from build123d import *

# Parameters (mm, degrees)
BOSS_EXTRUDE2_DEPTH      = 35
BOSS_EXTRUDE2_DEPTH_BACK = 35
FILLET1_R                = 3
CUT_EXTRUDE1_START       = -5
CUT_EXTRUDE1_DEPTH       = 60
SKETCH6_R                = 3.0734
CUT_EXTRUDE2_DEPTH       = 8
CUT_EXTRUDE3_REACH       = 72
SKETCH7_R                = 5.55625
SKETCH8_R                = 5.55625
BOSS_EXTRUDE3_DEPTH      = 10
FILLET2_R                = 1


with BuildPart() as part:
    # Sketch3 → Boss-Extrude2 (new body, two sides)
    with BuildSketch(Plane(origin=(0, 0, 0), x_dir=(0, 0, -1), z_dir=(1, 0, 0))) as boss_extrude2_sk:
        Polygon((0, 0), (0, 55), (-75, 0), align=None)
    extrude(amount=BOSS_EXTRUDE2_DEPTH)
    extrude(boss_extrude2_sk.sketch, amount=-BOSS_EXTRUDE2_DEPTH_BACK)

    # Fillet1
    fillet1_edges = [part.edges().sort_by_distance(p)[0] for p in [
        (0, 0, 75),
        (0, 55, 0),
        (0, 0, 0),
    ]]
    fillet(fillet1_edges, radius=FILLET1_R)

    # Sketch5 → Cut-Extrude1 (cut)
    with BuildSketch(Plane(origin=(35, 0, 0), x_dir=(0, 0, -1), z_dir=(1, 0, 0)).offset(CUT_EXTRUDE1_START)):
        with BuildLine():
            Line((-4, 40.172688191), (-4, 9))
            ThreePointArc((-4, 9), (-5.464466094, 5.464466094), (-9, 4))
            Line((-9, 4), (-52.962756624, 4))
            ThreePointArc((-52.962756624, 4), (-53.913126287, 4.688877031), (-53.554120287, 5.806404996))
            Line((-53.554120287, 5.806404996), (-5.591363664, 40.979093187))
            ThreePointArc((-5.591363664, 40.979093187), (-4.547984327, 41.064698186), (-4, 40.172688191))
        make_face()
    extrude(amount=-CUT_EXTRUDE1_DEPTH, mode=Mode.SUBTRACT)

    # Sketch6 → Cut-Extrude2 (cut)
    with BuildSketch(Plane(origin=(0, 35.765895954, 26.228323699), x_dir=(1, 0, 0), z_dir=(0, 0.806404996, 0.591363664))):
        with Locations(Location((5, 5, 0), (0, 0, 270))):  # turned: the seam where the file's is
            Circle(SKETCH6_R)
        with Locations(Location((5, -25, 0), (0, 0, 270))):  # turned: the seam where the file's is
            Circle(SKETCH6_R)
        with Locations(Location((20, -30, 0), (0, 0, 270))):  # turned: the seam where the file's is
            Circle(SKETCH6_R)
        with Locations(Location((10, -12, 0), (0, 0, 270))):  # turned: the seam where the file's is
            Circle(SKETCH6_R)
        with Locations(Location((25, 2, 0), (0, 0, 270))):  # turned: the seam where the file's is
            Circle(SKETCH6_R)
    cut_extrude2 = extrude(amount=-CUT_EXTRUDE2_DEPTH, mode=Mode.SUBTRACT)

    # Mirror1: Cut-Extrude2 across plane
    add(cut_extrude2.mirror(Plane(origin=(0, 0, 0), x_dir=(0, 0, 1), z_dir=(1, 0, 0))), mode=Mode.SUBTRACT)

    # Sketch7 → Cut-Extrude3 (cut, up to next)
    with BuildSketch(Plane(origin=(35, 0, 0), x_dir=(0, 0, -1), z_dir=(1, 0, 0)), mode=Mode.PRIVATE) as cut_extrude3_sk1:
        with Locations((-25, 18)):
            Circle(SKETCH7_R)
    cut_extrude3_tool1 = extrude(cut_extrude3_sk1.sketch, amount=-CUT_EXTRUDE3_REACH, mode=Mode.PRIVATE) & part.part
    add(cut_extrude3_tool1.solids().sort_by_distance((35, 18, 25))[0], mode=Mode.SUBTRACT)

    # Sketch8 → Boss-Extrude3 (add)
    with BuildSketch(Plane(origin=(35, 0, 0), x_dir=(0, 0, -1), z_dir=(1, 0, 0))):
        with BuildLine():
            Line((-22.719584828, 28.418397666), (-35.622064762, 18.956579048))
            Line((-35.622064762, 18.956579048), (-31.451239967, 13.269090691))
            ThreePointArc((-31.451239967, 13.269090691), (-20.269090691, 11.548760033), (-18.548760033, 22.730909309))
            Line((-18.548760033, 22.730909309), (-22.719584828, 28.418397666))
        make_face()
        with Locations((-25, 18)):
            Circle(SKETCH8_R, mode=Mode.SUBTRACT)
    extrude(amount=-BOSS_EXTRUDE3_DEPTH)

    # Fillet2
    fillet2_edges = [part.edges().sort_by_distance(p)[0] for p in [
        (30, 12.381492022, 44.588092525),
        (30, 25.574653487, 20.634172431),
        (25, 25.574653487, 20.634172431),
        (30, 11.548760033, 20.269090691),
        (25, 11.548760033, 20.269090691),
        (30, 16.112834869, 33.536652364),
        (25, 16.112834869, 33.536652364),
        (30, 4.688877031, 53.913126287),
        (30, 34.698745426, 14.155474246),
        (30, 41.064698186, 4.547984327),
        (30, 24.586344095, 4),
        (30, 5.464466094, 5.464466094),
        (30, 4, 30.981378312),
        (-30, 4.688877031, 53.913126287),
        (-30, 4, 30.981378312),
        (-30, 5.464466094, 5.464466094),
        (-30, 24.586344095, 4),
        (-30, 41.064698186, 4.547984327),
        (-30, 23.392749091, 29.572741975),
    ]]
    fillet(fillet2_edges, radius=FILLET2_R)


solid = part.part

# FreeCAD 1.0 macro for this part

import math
import FreeCAD as App
import Part
import Sketcher

V = App.Vector
Q = App.Units.Quantity


def edges_at(feature, points):
    """Names of the edges that pass closest to the given points."""
    edges = feature.Shape.Edges
    near = lambda p: min(range(len(edges)), key=lambda i: edges[i].distToShape(Part.Vertex(*p))[0])
    return sorted({f"Edge{near(p) + 1}" for p in points})

doc = App.newDocument("Part")
body = doc.addObject("PartDesign::Body", "Body")

sketch1 = body.newObject("Sketcher::SketchObject", "Sketch")
sketch1.AttachmentSupport = (doc.getObject("YZ_Plane"), [""])
sketch1.MapMode = "FlatFace"
sketch1.addGeometry([
    Part.LineSegment(V(0, 0, 0), V(55, 0, 0)),
    Part.LineSegment(V(55, 0, 0), V(0, 75, 0)),
    Part.LineSegment(V(0, 75, 0), V(0, 0, 0)),
], False)
sketch1.addConstraint([
    Sketcher.Constraint("Coincident", 0, 2, 1, 1),
    Sketcher.Constraint("Coincident", 1, 2, 2, 1),
    Sketcher.Constraint("Coincident", 2, 2, 0, 1),
    Sketcher.Constraint("Horizontal", 0),
    Sketcher.Constraint("Vertical", 2),
    Sketcher.Constraint("Coincident", 2, 2, -1, 1),
    Sketcher.Constraint("DistanceX", 0, 1, 0, 2, Q("55 mm")),
    Sketcher.Constraint("DistanceY", 2, 2, 2, 1, Q("75 mm")),
])
pad1 = body.newObject("PartDesign::Pad", "Pad")
pad1.Profile = sketch1
pad1.Type = "TwoLengths"
pad1.Length = 35
pad1.Length2 = 35
doc.recompute()

fillet = body.newObject("PartDesign::Fillet", "Fillet")
fillet.Base = (pad1, edges_at(pad1, [(0, 0, 75), (0, 55, 0), (0, 0, 0)]))
fillet.Radius = 3

sketch2 = body.newObject("Sketcher::SketchObject", "Sketch001")
sketch2.AttachmentSupport = (doc.getObject("YZ_Plane"), [""])
sketch2.MapMode = "FlatFace"
sketch2.AttachmentOffset = App.Placement(V(0, 0, 30), App.Rotation())
sketch2.addGeometry([
    Part.LineSegment(V(9, 4, 0), V(40.2, 4, 0)),
    Part.ArcOfCircle(Part.Circle(V(40.2, 5, 0), V(0, 0, 1), 1), math.radians(-90), math.radians(36)),
    Part.LineSegment(V(41, 5.6, 0), V(5.8, 53.6, 0)),
    Part.ArcOfCircle(Part.Circle(V(5, 53, 0), V(0, 0, 1), 1), math.radians(36), math.radians(180)),
    Part.LineSegment(V(4, 53, 0), V(4, 9, 0)),
    Part.ArcOfCircle(Part.Circle(V(9, 9, 0), V(0, 0, 1), 5), math.radians(180), math.radians(270)),
], False)
sketch2.addConstraint([
    Sketcher.Constraint("Tangent", 0, 2, 1, 1),
    Sketcher.Constraint("Tangent", 1, 2, 2, 1),
    Sketcher.Constraint("Tangent", 2, 2, 3, 1),
    Sketcher.Constraint("Tangent", 3, 2, 4, 1),
    Sketcher.Constraint("Tangent", 4, 2, 5, 1),
    Sketcher.Constraint("Tangent", 5, 2, 0, 1),
    Sketcher.Constraint("Horizontal", 0),
    Sketcher.Constraint("Vertical", 4),
    Sketcher.Constraint("Equal", 1, 3),
    Sketcher.Constraint("Radius", 1, Q("1 mm")),
    Sketcher.Constraint("Radius", 5, Q("5 mm")),
    Sketcher.Constraint("DistanceY", -1, 1, 1, 3, Q("5 mm")),
    Sketcher.Constraint("DistanceX", -1, 1, 3, 3, Q("5 mm")),
    Sketcher.Constraint("DistanceX", 0, 1, 0, 2, Q("31.172688 mm")),
    Sketcher.Constraint("DistanceY", 4, 2, 4, 1, Q("43.962757 mm")),
])
pocket1 = body.newObject("PartDesign::Pocket", "Pocket")
pocket1.Profile = sketch2
pocket1.Length = 60

sketch3 = body.newObject("Sketcher::SketchObject", "Sketch002")
sketch3.Placement = App.Placement(V(0, 35.765896, 26.228324), App.Rotation(V(1, 0, 0), V(0, 0.591363664, -0.806404996), V(0, 0.806404996, 0.591363664), "ZXY"))
sketch3.addGeometry([
    Part.Circle(V(5, 5, 0), V(0, 0, 1), 3.1),
    Part.Circle(V(5, -25, 0), V(0, 0, 1), 3.1),
    Part.Circle(V(20, -30, 0), V(0, 0, 1), 3.1),
    Part.Circle(V(10, -12, 0), V(0, 0, 1), 3.1),
    Part.Circle(V(25, 2, 0), V(0, 0, 1), 3.1),
], False)
sketch3.addConstraint([
    Sketcher.Constraint("Equal", 0, 1),
    Sketcher.Constraint("Equal", 1, 2),
    Sketcher.Constraint("Equal", 2, 3),
    Sketcher.Constraint("Equal", 3, 4),
    Sketcher.Constraint("Vertical", 0, 3, 1, 3),
    Sketcher.Constraint("DistanceX", -1, 1, 0, 3, Q("5 mm")),
    Sketcher.Constraint("DistanceY", -1, 1, 0, 3, Q("5 mm")),
    Sketcher.Constraint("DistanceY", 1, 3, -1, 1, Q("25 mm")),
    Sketcher.Constraint("DistanceX", -1, 1, 2, 3, Q("20 mm")),
    Sketcher.Constraint("DistanceY", 2, 3, -1, 1, Q("30 mm")),
    Sketcher.Constraint("DistanceX", -1, 1, 3, 3, Q("10 mm")),
    Sketcher.Constraint("DistanceY", 3, 3, -1, 1, Q("12 mm")),
    Sketcher.Constraint("DistanceX", -1, 1, 4, 3, Q("25 mm")),
    Sketcher.Constraint("DistanceY", -1, 1, 4, 3, Q("2 mm")),
    Sketcher.Constraint("Diameter", 0, Q("6.1468 mm")),
])
pocket2 = body.newObject("PartDesign::Pocket", "Pocket001")
pocket2.Profile = sketch3
pocket2.Length = 8
doc.recompute()

mirrored = body.newObject("PartDesign::Mirrored", "Mirrored")
mirrored.Originals = [pocket2]
mirrored.MirrorPlane = (doc.getObject("YZ_Plane"), [""])
body.Tip = mirrored

sketch4 = body.newObject("Sketcher::SketchObject", "Sketch003")
sketch4.AttachmentSupport = (doc.getObject("YZ_Plane"), [""])
sketch4.MapMode = "FlatFace"
sketch4.AttachmentOffset = App.Placement(V(0, 0, 35), App.Rotation())
sketch4.addGeometry(Part.Circle(V(18, 25, 0), V(0, 0, 1), 6), False)
sketch4.addConstraint([
    Sketcher.Constraint("DistanceX", -1, 1, 0, 3, Q("18 mm")),
    Sketcher.Constraint("DistanceY", -1, 1, 0, 3, Q("25 mm")),
    Sketcher.Constraint("Diameter", 0, Q("11.1125 mm")),
])
pocket3 = body.newObject("PartDesign::Pocket", "Pocket002")
pocket3.Profile = sketch4
pocket3.Type = "UpToFirst"

sketch5 = body.newObject("Sketcher::SketchObject", "Sketch004")
sketch5.AttachmentSupport = (doc.getObject("YZ_Plane"), [""])
sketch5.MapMode = "FlatFace"
sketch5.AttachmentOffset = App.Placement(V(0, 0, 35), App.Rotation())
sketch5.addGeometry([
    Part.LineSegment(V(28, 23, 0), V(19, 36, 0)),
    Part.LineSegment(V(19, 36, 0), V(13, 31, 0)),
    Part.ArcOfCircle(Part.Circle(V(18, 25, 0), V(0, 0, 1), 8), math.radians(126), math.radians(306)),
    Part.LineSegment(V(23, 19, 0), V(28, 23, 0)),
    Part.Circle(V(18, 25, 0), V(0, 0, 1), 6),
], False)
sketch5.addConstraint([
    Sketcher.Constraint("Coincident", 0, 2, 1, 1),
    Sketcher.Constraint("Tangent", 1, 2, 2, 1),
    Sketcher.Constraint("Tangent", 2, 2, 3, 1),
    Sketcher.Constraint("Coincident", 3, 2, 0, 1),
    Sketcher.Constraint("Coincident", 4, 3, 2, 3),
    Sketcher.Constraint("Perpendicular", 0, 1),
    Sketcher.Constraint("Parallel", 1, 3),
    Sketcher.Constraint("Radius", 2, Q("8 mm")),
    Sketcher.Constraint("DistanceX", -1, 1, 2, 3, Q("18 mm")),
    Sketcher.Constraint("DistanceY", -1, 1, 2, 3, Q("25 mm")),
    Sketcher.Constraint("Diameter", 4, Q("11.1125 mm")),
    Sketcher.Constraint("DistanceX", -1, 1, 0, 2, Q("18.956579 mm")),
    Sketcher.Constraint("DistanceX", -1, 1, 1, 2, Q("13.269091 mm")),
])
pad2 = body.newObject("PartDesign::Pad", "Pad001")
pad2.Profile = sketch5
pad2.Length = 10
pad2.Reversed = True
doc.recompute()

fillet2 = body.newObject("PartDesign::Fillet", "Fillet001")
fillet2.Base = (pad2, edges_at(pad2, [
    (30, 12.381, 44.588),
    (30, 25.575, 20.634),
    (25, 25.575, 20.634),
    (30, 11.549, 20.269),
    (25, 11.549, 20.269),
    (30, 16.113, 33.537),
    (25, 16.113, 33.537),
    (30, 4.689, 53.913),
    (30, 34.699, 14.155),
    (30, 41.065, 4.548),
    (30, 24.586, 4),
    (30, 5.464, 5.464),
    (30, 4, 30.981),
    (-30, 4.689, 53.913),
    (-30, 4, 30.981),
    (-30, 5.464, 5.464),
    (-30, 24.586, 4),
    (-30, 41.065, 4.548),
    (-30, 23.393, 29.573),
]))
fillet2.Radius = 1

doc.recompute()
